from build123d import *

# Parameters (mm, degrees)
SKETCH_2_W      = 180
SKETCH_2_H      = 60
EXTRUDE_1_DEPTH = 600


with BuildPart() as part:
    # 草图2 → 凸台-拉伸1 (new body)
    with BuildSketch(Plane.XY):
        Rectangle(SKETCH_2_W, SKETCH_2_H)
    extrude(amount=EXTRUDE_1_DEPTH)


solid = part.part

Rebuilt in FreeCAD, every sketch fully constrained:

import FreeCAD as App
import Part
import Sketcher


def add_polygon(sketch, points):
    """Adds a closed chain of lines whose ends are joined by coincident constraints."""
    first, n = sketch.GeometryCount, len(points)
    for a, b in zip(points, points[1:] + points[:1]):
        sketch.addGeometry(Part.LineSegment(App.Vector(*a, 0), App.Vector(*b, 0)), False)
    for i in range(n):
        sketch.addConstraint(Sketcher.Constraint("Coincident", first + i, 2, first + (i + 1) % n, 1))

doc = App.newDocument("Part")
params = doc.addObject("Spreadsheet::Sheet", "Params")
for row, (alias, value) in enumerate([
    ("sketch1_width", "180 mm"),
    ("sketch1_height", "60 mm"),
    ("pad1_length", "600 mm"),
], start=1):
    params.set(f"A{row}", alias)
    params.set(f"B{row}", "=" + value)
    params.setAlias(f"B{row}", alias)

body = doc.addObject("PartDesign::Body", "Body")

# Sketch on XY plane
sketch1 = body.newObject("Sketcher::SketchObject", "Sketch")
sketch1.AttachmentSupport = (doc.getObject("XY_Plane"), [""])
sketch1.MapMode = "FlatFace"
add_polygon(sketch1, [(-90, 30), (-90, -30), (90, -30), (90, 30)])  # lines 0-3
sketch1.addConstraint([
    Sketcher.Constraint("Vertical", 0),
    Sketcher.Constraint("Horizontal", 1),
    Sketcher.Constraint("Vertical", 2),
    Sketcher.Constraint("Horizontal", 3),
    Sketcher.Constraint("Symmetric", 0, 2, 2, 2, -1, 1),
    Sketcher.Constraint("DistanceX", 1, 1, 1, 2, 180.0),
    Sketcher.Constraint("DistanceY", 0, 2, 0, 1, 60.0),
])
sketch1.setExpression("Constraints[9]", "Params.sketch1_width")
sketch1.setExpression("Constraints[10]", "Params.sketch1_height")
pad1 = body.newObject("PartDesign::Pad", "Pad")
pad1.Profile = sketch1
pad1.setExpression("Length", "Params.pad1_length")

doc.recompute()
